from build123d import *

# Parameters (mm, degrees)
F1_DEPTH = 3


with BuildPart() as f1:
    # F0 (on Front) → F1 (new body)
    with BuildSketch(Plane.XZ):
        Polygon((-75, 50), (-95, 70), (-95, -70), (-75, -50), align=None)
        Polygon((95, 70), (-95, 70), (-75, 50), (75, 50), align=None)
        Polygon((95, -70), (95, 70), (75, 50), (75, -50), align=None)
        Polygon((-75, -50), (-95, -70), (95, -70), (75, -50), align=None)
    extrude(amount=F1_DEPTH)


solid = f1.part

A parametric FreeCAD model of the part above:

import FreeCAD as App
import Part
import Sketcher
Q = App.Units.Quantity


def add_polygon(sketch, points):
    """Adds a closed chain of lines whose ends are joined by coincident constraints."""
    first, n = sketch.GeometryCount, len(points)
    for a, b in zip(points, points[1:] + points[:1]):
        sketch.addGeometry(Part.LineSegment(App.Vector(*a, 0), App.Vector(*b, 0)), False)
    for i in range(n):
        sketch.addConstraint(Sketcher.Constraint("Coincident", first + i, 2, first + (i + 1) % n, 1))

doc = App.newDocument("Part")
params = doc.addObject("Spreadsheet::Sheet", "Params")
for row, (alias, value) in enumerate([
    ("sketch1_width", "190 mm"),
    ("sketch1_width2", "150 mm"),
    ("sketch1_height", "140 mm"),
    ("sketch1_height2", "100 mm"),
    ("pad1_length", "3 mm"),
], start=1):
    params.set(f"A{row}", alias)
    params.set(f"B{row}", "=" + value)
    params.setAlias(f"B{row}", alias)

body = doc.addObject("PartDesign::Body", "Body")

sketch1 = doc.addObject("Sketcher::SketchObject", "Sketch")
body.addObject(sketch1)
sketch1.AttachmentSupport = (doc.XZ_Plane, [""])
sketch1.MapMode = "FlatFace"
add_polygon(sketch1, [(-95, 70), (-95, -70), (95, -70), (95, 70)])
add_polygon(sketch1, [(-75, -50), (-75, 50), (75, 50), (75, -50)])
sketch1.addConstraint([
    Sketcher.Constraint("Vertical", 0),
    Sketcher.Constraint("Horizontal", 1),
    Sketcher.Constraint("Vertical", 2),
    Sketcher.Constraint("Horizontal", 3),
    Sketcher.Constraint("Vertical", 4),
    Sketcher.Constraint("Horizontal", 5),
    Sketcher.Constraint("Vertical", 6),
    Sketcher.Constraint("Horizontal", 7),
    Sketcher.Constraint("Symmetric", 0, 2, 2, 2, -1, 1),
    Sketcher.Constraint("Symmetric", 4, 2, 6, 2, -1, 1),
    Sketcher.Constraint("DistanceX", 1, 1, 1, 2, Q("190 mm")),
    Sketcher.Constraint("DistanceX", 5, 1, 5, 2, Q("150 mm")),
    Sketcher.Constraint("DistanceY", 0, 2, 0, 1, Q("140 mm")),
    Sketcher.Constraint("DistanceY", 4, 1, 4, 2, Q("100 mm")),
])
sketch1.setExpression("Constraints[18]", "Params.sketch1_width")
sketch1.setExpression("Constraints[19]", "Params.sketch1_width2")
sketch1.setExpression("Constraints[20]", "Params.sketch1_height")
sketch1.setExpression("Constraints[21]", "Params.sketch1_height2")
pad1 = doc.addObject("PartDesign::Pad", "Pad")
body.addObject(pad1)
pad1.Profile = sketch1
pad1.setExpression("Length", "Params.pad1_length")

doc.recompute()
